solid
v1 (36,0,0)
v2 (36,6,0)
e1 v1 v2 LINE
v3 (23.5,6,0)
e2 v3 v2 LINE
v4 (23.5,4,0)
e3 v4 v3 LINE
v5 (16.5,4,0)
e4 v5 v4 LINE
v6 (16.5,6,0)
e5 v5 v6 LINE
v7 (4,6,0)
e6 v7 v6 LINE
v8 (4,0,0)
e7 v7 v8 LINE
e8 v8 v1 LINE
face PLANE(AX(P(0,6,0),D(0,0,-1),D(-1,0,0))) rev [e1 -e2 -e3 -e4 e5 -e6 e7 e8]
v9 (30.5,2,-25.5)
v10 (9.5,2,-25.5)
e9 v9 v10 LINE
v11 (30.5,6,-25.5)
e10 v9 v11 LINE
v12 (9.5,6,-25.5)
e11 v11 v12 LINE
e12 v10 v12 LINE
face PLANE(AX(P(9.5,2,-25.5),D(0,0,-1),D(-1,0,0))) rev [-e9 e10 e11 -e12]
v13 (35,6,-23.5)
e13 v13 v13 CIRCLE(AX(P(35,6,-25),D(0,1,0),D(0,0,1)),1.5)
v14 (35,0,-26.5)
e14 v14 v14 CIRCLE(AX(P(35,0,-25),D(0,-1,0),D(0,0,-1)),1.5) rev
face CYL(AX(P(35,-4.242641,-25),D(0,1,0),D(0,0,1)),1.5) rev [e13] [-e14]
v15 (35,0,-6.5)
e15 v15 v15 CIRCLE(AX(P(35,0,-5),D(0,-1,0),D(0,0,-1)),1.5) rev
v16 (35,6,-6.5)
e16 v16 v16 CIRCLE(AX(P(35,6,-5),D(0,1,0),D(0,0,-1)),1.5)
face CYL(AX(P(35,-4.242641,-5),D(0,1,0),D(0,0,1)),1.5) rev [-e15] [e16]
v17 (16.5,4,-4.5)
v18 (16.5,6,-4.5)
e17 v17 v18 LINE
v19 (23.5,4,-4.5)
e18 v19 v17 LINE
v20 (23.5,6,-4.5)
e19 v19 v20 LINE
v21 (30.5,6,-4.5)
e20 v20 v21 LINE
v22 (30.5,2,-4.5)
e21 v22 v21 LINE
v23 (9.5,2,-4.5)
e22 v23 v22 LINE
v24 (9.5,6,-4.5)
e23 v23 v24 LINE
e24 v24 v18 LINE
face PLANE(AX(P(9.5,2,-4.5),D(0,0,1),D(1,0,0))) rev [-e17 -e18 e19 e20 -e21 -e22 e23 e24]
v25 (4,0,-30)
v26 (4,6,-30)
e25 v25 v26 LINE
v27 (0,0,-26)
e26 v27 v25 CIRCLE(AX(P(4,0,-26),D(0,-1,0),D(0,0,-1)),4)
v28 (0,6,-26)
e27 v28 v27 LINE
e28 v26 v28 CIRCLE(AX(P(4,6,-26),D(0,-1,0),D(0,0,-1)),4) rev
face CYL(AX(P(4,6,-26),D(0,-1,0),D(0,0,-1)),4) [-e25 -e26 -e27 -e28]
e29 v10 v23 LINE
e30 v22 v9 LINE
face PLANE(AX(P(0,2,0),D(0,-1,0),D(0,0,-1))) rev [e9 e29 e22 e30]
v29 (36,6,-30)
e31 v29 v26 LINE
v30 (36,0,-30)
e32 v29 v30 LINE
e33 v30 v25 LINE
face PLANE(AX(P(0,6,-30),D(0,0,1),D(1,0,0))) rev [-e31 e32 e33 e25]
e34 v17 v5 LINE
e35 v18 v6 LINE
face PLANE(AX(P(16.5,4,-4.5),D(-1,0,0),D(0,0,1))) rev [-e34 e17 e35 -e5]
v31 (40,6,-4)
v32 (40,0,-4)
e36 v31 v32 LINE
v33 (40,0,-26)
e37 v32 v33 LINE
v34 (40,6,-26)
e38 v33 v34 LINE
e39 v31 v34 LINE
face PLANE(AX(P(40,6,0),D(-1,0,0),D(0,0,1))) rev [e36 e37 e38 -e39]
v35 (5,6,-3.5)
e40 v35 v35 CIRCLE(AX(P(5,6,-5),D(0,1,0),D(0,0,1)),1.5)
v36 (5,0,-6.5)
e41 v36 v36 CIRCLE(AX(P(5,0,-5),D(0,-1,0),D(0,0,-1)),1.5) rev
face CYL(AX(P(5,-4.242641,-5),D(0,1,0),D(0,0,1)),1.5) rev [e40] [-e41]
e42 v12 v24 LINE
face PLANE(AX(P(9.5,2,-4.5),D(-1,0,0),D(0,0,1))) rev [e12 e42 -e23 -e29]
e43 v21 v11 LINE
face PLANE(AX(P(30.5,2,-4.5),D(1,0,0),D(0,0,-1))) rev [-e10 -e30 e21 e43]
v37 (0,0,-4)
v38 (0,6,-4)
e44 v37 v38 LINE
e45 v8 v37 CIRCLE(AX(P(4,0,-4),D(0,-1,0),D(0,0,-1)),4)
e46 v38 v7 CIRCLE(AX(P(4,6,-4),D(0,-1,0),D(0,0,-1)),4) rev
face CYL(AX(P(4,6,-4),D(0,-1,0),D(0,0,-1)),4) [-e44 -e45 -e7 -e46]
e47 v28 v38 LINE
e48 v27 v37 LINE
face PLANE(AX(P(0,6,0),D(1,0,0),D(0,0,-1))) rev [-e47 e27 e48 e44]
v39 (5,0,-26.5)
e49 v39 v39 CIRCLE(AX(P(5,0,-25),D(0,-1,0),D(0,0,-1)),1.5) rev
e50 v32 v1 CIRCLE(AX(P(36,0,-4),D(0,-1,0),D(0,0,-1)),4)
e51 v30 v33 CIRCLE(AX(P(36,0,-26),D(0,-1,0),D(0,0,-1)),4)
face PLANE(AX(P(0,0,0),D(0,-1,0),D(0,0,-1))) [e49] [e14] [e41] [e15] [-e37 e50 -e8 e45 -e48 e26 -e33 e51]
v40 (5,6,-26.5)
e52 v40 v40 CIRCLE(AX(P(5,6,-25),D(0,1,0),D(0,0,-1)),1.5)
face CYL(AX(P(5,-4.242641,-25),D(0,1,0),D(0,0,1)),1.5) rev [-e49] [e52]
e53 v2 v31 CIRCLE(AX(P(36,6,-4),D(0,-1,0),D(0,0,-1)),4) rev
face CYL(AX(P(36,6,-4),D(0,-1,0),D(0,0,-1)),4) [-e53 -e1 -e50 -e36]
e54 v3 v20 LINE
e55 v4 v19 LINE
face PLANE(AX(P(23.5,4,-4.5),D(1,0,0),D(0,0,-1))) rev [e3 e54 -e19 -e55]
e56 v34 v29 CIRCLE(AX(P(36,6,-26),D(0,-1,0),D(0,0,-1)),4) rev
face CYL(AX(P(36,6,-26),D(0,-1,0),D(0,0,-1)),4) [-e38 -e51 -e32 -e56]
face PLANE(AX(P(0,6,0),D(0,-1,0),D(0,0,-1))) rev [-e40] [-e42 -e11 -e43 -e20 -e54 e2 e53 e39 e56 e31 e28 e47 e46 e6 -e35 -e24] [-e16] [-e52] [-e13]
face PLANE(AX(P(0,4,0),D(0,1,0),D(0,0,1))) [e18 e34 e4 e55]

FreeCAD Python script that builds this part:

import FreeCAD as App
import Part
import Sketcher
from FreeCAD import Vector


def edges_at(feature, points):
    """Names of the edges that pass closest to the given points."""
    edges = feature.Shape.Edges
    near = lambda p: min(range(len(edges)), key=lambda i: edges[i].distToShape(Part.Vertex(*p))[0])
    return sorted({f"Edge{near(p) + 1}" for p in points})

doc = App.newDocument("Part")
body = doc.addObject("PartDesign::Body", "Body")

# Sketch on XZ plane
sketch1 = body.newObject("Sketcher::SketchObject", "Sketch")
sketch1.AttachmentSupport = (doc.getObject("XZ_Plane"), [""])
sketch1.MapMode = "FlatFace"
sketch1.addGeometry([
    Part.LineSegment(Vector(0, -30, 0), Vector(0, 0, 0)),
    Part.LineSegment(Vector(0, 0, 0), Vector(40, 0, 0)),
    Part.LineSegment(Vector(40, 0, 0), Vector(40, -30, 0)),
    Part.LineSegment(Vector(40, -30, 0), Vector(0, -30, 0)),
], False)
sketch1.addConstraint([
    Sketcher.Constraint("Coincident", 0, 2, 1, 1),
    Sketcher.Constraint("Coincident", 1, 2, 2, 1),
    Sketcher.Constraint("Coincident", 2, 2, 3, 1),
    Sketcher.Constraint("Coincident", 3, 2, 0, 1),
    Sketcher.Constraint("Vertical", 0),
    Sketcher.Constraint("Horizontal", 1),
    Sketcher.Constraint("Vertical", 2),
    Sketcher.Constraint("Horizontal", 3),
    Sketcher.Constraint("Coincident", 0, 2, -1, 1),
    Sketcher.Constraint("DistanceX", 1, 1, 1, 2, 40.0),
    Sketcher.Constraint("DistanceY", 0, 1, 0, 2, 30.0),
])
pad1 = body.newObject("PartDesign::Pad", "Pad")
pad1.Profile = sketch1
pad1.Length = 6
pad1.Reversed = True

# Sketch on XZ plane
sketch2 = body.newObject("Sketcher::SketchObject", "Sketch001")
sketch2.AttachmentSupport = (doc.getObject("XZ_Plane"), [""])
sketch2.MapMode = "FlatFace"
sketch2.AttachmentOffset = App.Placement(Vector(0, 0, -6), App.Rotation())
sketch2.addGeometry([
    Part.Circle(Vector(5, -5, 0), Vector(0, 0, 1), 1.5),
    Part.Circle(Vector(5, -25, 0), Vector(0, 0, 1), 1.5),
    Part.Circle(Vector(35, -5, 0), Vector(0, 0, 1), 1.5),
    Part.Circle(Vector(35, -25, 0), Vector(0, 0, 1), 1.5),
], False)
sketch2.addConstraint([
    Sketcher.Constraint("Equal", 0, 1),
    Sketcher.Constraint("Equal", 1, 2),
    Sketcher.Constraint("Equal", 2, 3),
    Sketcher.Constraint("Horizontal", 0, 3, 2, 3),
    Sketcher.Constraint("Horizontal", 1, 3, 3, 3),
    Sketcher.Constraint("Vertical", 0, 3, 1, 3),
    Sketcher.Constraint("Vertical", 2, 3, 3, 3),
    Sketcher.Constraint("Diameter", 0, 3.0),
    Sketcher.Constraint("DistanceX", -1, 1, 0, 3, 5.0),
    Sketcher.Constraint("DistanceY", 0, 3, -1, 1, 5.0),
    Sketcher.Constraint("DistanceY", 1, 3, -1, 1, 25.0),
    Sketcher.Constraint("DistanceX", -1, 1, 2, 3, 35.0),
])
pocket1 = body.newObject("PartDesign::Pocket", "Pocket")
pocket1.Profile = sketch2
pocket1.Length = 6
pocket1.Reversed = True
doc.recompute()

fillet = body.newObject("PartDesign::Fillet", "Fillet")
fillet.Base = (pocket1, edges_at(pocket1, [
    (0, 3, -30),
    (40, 3, -30),
    (40, 3, 0),
    (0, 3, 0),
]))
fillet.Radius = 4

# Sketch on XZ plane
sketch3 = body.newObject("Sketcher::SketchObject", "Sketch002")
sketch3.AttachmentSupport = (doc.getObject("XZ_Plane"), [""])
sketch3.MapMode = "FlatFace"
sketch3.AttachmentOffset = App.Placement(Vector(0, 0, -6), App.Rotation())
sketch3.addGeometry([
    Part.LineSegment(Vector(10, -26, 0), Vector(10, -4, 0)),
    Part.LineSegment(Vector(10, -4, 0), Vector(30, -4, 0)),
    Part.LineSegment(Vector(30, -4, 0), Vector(30, -26, 0)),
    Part.LineSegment(Vector(30, -26, 0), Vector(10, -26, 0)),
], False)
sketch3.addConstraint([
    Sketcher.Constraint("Coincident", 0, 2, 1, 1),
    Sketcher.Constraint("Coincident", 1, 2, 2, 1),
    Sketcher.Constraint("Coincident", 2, 2, 3, 1),
    Sketcher.Constraint("Coincident", 3, 2, 0, 1),
    Sketcher.Constraint("Vertical", 0),
    Sketcher.Constraint("Horizontal", 1),
    Sketcher.Constraint("Vertical", 2),
    Sketcher.Constraint("Horizontal", 3),
    Sketcher.Constraint("Equal", 3, 0),
    Sketcher.Constraint("DistanceX", 1, 1, 1, 2, 21.0),
    Sketcher.Constraint("DistanceX", -1, 1, 0, 2, 9.5),
    Sketcher.Constraint("DistanceY", 0, 2, -1, 1, 4.5),
])
pocket2 = body.newObject("PartDesign::Pocket", "Pocket001")
pocket2.Profile = sketch3
pocket2.Length = 4
pocket2.Reversed = True

# Sketch on XZ plane
sketch4 = body.newObject("Sketcher::SketchObject", "Sketch003")
sketch4.AttachmentSupport = (doc.getObject("XZ_Plane"), [""])
sketch4.MapMode = "FlatFace"
sketch4.AttachmentOffset = App.Placement(Vector(0, 0, -6), App.Rotation())
sketch4.addGeometry([
    Part.LineSegment(Vector(16.5, -4.5, 0), Vector(16.5, 0, 0)),
    Part.LineSegment(Vector(16.5, 0, 0), Vector(23.5, 0, 0)),
    Part.LineSegment(Vector(23.5, 0, 0), Vector(23.5, -4.5, 0)),
    Part.LineSegment(Vector(23.5, -4.5, 0), Vector(16.5, -4.5, 0)),
], False)
sketch4.addConstraint([
    Sketcher.Constraint("Coincident", 0, 2, 1, 1),
    Sketcher.Constraint("Coincident", 1, 2, 2, 1),
    Sketcher.Constraint("Coincident", 2, 2, 3, 1),
    Sketcher.Constraint("Coincident", 3, 2, 0, 1),
    Sketcher.Constraint("Vertical", 0),
    Sketcher.Constraint("Horizontal", 1),
    Sketcher.Constraint("Vertical", 2),
    Sketcher.Constraint("Horizontal", 3),
    Sketcher.Constraint("PointOnObject", 0, 2, -1),
    Sketcher.Constraint("DistanceX", 1, 1, 1, 2, 7.0),
    Sketcher.Constraint("DistanceY", 0, 1, 0, 2, 4.5),
    Sketcher.Constraint("DistanceX", -1, 1, 0, 2, 16.5),
])
pocket3 = body.newObject("PartDesign::Pocket", "Pocket002")
pocket3.Profile = sketch4
pocket3.Length = 2
pocket3.Reversed = True

doc.recompute()
